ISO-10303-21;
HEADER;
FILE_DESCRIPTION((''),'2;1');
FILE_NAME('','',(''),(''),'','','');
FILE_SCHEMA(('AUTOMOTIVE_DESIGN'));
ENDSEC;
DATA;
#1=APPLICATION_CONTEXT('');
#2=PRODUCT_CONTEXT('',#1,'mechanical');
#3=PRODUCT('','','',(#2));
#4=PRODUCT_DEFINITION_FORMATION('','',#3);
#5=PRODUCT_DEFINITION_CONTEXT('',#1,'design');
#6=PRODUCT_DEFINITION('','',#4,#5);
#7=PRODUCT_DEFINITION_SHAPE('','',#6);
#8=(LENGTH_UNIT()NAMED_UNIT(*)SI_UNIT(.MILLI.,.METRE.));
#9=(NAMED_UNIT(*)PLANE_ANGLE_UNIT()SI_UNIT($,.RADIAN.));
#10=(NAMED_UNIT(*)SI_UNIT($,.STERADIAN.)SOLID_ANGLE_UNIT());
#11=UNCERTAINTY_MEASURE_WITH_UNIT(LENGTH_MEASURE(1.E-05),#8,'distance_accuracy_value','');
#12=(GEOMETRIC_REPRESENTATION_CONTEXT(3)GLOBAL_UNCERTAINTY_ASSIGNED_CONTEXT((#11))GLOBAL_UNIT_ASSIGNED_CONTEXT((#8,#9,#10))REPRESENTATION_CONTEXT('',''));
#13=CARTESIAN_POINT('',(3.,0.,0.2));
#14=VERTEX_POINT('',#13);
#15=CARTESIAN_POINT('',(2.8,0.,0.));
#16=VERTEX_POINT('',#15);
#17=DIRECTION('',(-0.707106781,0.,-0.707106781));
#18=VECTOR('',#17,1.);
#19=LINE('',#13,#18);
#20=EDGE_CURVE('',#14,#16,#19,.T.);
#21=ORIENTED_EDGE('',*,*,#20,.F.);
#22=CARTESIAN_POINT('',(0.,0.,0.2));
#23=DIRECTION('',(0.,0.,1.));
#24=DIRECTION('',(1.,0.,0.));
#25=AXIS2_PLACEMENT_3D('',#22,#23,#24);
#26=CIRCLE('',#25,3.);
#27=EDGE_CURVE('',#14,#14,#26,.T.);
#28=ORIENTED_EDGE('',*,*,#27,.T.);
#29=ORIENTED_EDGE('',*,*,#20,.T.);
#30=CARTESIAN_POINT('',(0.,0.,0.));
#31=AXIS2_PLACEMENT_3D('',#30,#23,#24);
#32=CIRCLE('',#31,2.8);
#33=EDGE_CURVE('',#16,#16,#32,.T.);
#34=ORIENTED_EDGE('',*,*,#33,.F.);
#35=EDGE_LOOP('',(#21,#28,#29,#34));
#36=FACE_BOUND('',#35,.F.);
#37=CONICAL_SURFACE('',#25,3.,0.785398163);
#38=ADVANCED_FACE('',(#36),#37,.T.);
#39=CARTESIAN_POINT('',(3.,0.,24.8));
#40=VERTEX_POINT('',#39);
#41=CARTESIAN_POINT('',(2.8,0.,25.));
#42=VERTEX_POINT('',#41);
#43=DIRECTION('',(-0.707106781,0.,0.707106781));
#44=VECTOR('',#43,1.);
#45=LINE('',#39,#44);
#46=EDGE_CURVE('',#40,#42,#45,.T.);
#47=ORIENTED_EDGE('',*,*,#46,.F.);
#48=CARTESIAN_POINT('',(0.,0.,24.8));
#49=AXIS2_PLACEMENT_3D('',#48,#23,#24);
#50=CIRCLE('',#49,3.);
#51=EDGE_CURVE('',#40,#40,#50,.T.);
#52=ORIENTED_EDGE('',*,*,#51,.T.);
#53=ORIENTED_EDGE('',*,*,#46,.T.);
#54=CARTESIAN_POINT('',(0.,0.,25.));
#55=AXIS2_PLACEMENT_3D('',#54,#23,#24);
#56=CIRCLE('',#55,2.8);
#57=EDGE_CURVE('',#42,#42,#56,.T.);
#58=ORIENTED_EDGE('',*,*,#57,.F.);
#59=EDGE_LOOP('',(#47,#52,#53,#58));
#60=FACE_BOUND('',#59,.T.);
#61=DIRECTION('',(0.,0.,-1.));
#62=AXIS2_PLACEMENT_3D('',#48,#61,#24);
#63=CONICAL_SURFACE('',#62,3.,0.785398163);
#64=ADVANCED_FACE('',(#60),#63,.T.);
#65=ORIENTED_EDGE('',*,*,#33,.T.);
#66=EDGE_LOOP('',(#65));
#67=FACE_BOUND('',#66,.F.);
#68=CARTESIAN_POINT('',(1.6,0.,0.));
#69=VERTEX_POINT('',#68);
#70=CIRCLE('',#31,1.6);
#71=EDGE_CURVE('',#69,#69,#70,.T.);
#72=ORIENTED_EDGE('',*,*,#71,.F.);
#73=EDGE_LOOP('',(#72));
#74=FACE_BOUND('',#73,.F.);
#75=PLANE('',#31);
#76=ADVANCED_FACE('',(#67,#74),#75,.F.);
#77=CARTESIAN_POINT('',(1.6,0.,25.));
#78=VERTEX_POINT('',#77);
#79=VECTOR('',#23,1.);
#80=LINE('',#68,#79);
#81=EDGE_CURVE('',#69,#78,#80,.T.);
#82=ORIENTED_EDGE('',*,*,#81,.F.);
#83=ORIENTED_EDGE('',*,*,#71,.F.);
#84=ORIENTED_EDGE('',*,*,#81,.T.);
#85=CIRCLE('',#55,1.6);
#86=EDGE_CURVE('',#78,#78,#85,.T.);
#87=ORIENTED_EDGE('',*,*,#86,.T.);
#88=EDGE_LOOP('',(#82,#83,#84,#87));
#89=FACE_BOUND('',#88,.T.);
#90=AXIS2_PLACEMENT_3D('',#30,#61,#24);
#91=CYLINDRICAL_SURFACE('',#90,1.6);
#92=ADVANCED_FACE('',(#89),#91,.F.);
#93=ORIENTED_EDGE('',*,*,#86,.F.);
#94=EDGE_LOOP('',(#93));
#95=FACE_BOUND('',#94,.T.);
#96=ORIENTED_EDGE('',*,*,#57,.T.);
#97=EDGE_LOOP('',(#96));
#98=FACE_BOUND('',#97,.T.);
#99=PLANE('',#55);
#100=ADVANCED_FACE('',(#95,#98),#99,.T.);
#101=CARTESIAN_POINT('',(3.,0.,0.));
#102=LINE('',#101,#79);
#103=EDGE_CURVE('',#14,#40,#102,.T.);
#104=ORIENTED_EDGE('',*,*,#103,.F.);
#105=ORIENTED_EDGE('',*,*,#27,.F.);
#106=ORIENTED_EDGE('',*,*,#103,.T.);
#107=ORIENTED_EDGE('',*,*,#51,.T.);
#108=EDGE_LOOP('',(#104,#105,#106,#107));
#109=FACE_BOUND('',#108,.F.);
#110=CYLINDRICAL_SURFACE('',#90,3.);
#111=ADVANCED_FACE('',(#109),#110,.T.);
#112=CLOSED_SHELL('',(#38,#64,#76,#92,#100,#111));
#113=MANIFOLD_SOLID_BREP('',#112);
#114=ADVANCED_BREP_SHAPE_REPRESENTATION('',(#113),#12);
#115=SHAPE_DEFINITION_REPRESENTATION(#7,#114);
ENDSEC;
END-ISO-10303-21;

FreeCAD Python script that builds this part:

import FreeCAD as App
import Part
import Sketcher
Q = App.Units.Quantity


def edges_at(feature, points):
    """Names of the edges that pass closest to the given points."""
    edges = feature.Shape.Edges
    near = lambda p: min(range(len(edges)), key=lambda i: edges[i].distToShape(Part.Vertex(*p))[0])
    return sorted({f"Edge{near(p) + 1}" for p in points})

doc = App.newDocument("Part")
params = doc.addObject("Spreadsheet::Sheet", "Params")
for row, (alias, value) in enumerate([
    ("sketch1_diameter", "6 mm"),
    ("sketch1_diameter2", "3.2 mm"),
    ("pad1_length", "25 mm"),
    ("chamfer_size", "0.2 mm"),
], start=1):
    params.set(f"A{row}", alias)
    params.set(f"B{row}", "=" + value)
    params.setAlias(f"B{row}", alias)

body = doc.addObject("PartDesign::Body", "Body")

# Sketch on XY plane
sketch1 = body.newObject("Sketcher::SketchObject", "Sketch")
sketch1.AttachmentSupport = (doc.getObject("XY_Plane"), [""])
sketch1.MapMode = "FlatFace"
sketch1.addGeometry(Part.Circle(App.Vector(0, 0, 0), App.Vector(0, 0, 1), 3), False)
sketch1.addGeometry(Part.Circle(App.Vector(0, 0, 0), App.Vector(0, 0, 1), 1.6), False)
sketch1.addConstraint(Sketcher.Constraint("Coincident", 0, 3, -1, 1))
sketch1.addConstraint(Sketcher.Constraint("Coincident", 1, 3, -1, 1))
sketch1.addConstraint(Sketcher.Constraint("Diameter", 0, Q("6 mm")))
sketch1.addConstraint(Sketcher.Constraint("Diameter", 1, Q("3.2 mm")))
sketch1.setExpression("Constraints[2]", "Params.sketch1_diameter")
sketch1.setExpression("Constraints[3]", "Params.sketch1_diameter2")
pad1 = body.newObject("PartDesign::Pad", "Pad")
pad1.Profile = sketch1
pad1.setExpression("Length", "Params.pad1_length")
doc.recompute()

chamfer = body.newObject("PartDesign::Chamfer", "Chamfer")
chamfer.Base = (pad1, edges_at(pad1, [(-3, 0, 0), (-3, 0, 25)]))
chamfer.setExpression("Size", "Params.chamfer_size")

doc.recompute()
